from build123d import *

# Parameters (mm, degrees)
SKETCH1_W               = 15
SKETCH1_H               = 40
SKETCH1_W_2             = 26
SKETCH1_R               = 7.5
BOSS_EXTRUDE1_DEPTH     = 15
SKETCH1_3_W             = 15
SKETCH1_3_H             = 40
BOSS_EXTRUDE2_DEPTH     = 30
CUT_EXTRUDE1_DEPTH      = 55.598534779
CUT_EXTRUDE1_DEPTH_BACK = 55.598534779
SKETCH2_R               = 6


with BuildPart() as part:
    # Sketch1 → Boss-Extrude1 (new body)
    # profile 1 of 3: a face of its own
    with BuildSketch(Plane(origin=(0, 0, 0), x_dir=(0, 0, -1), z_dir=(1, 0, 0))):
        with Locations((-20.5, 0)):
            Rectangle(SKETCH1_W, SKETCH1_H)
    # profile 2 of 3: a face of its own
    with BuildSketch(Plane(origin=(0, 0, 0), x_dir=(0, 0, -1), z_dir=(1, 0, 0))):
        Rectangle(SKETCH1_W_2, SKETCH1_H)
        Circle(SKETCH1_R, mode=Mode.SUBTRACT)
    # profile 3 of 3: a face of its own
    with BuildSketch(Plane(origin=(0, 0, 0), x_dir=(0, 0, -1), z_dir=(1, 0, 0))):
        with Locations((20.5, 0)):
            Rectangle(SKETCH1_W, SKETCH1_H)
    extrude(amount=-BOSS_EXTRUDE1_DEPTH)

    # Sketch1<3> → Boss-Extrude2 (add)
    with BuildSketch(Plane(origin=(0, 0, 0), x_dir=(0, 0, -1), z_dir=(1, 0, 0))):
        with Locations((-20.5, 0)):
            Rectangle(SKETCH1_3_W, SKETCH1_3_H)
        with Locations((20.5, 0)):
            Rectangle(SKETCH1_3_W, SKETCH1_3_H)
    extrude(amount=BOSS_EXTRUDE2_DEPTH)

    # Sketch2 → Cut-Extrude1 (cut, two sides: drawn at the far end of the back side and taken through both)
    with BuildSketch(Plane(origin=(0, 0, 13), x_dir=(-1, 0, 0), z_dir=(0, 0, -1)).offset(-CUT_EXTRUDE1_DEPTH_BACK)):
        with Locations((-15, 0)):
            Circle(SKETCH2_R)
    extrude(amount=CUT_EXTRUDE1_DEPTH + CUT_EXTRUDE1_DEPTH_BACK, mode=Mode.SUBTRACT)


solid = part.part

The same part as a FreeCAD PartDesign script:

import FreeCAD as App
import Part
import Sketcher
Q = App.Units.Quantity

doc = App.newDocument("Part")
body = doc.addObject("PartDesign::Body", "Body")

# Sketch on YZ plane
sketch1 = body.newObject("Sketcher::SketchObject", "Sketch")
sketch1.AttachmentSupport = (doc.getObject("YZ_Plane"), [""])
sketch1.MapMode = "FlatFace"
sketch1.addGeometry(Part.LineSegment(App.Vector(20, 28, 0), App.Vector(-20, 28, 0)), False)
sketch1.addGeometry(Part.LineSegment(App.Vector(-20, 28, 0), App.Vector(-20, -28, 0)), False)
sketch1.addGeometry(Part.LineSegment(App.Vector(-20, -28, 0), App.Vector(20, -28, 0)), False)
sketch1.addGeometry(Part.LineSegment(App.Vector(20, -28, 0), App.Vector(20, 28, 0)), False)
sketch1.addGeometry(Part.Circle(App.Vector(0, 0, 0), App.Vector(0, 0, 1), 8), False)
sketch1.addConstraint(Sketcher.Constraint("Coincident", 0, 2, 1, 1))
sketch1.addConstraint(Sketcher.Constraint("Coincident", 1, 2, 2, 1))
sketch1.addConstraint(Sketcher.Constraint("Coincident", 2, 2, 3, 1))
sketch1.addConstraint(Sketcher.Constraint("Coincident", 3, 2, 0, 1))
sketch1.addConstraint(Sketcher.Constraint("Horizontal", 0))
sketch1.addConstraint(Sketcher.Constraint("Vertical", 1))
sketch1.addConstraint(Sketcher.Constraint("Horizontal", 2))
sketch1.addConstraint(Sketcher.Constraint("Vertical", 3))
sketch1.addConstraint(Sketcher.Constraint("Coincident", 4, 3, -1, 1))
sketch1.addConstraint(Sketcher.Constraint("Symmetric", 0, 2, 2, 2, -1, 1))
sketch1.addConstraint(Sketcher.Constraint("Diameter", 4, Q("15 mm")))
sketch1.addConstraint(Sketcher.Constraint("DistanceX", 0, 2, 0, 1, Q("40 mm")))
sketch1.addConstraint(Sketcher.Constraint("DistanceY", 1, 2, 1, 1, Q("56 mm")))
pad1 = body.newObject("PartDesign::Pad", "Pad")
pad1.Profile = sketch1
pad1.Length = 15
pad1.Reversed = True

# Sketch on YZ plane
sketch2 = body.newObject("Sketcher::SketchObject", "Sketch001")
sketch2.AttachmentSupport = (doc.getObject("YZ_Plane"), [""])
sketch2.MapMode = "FlatFace"
sketch2.addGeometry(Part.LineSegment(App.Vector(20, 28, 0), App.Vector(-20, 28, 0)), False)
sketch2.addGeometry(Part.LineSegment(App.Vector(-20, 28, 0), App.Vector(-20, 13, 0)), False)
sketch2.addGeometry(Part.LineSegment(App.Vector(-20, 13, 0), App.Vector(20, 13, 0)), False)
sketch2.addGeometry(Part.LineSegment(App.Vector(20, 13, 0), App.Vector(20, 28, 0)), False)
sketch2.addGeometry(Part.LineSegment(App.Vector(20, -13, 0), App.Vector(-20, -13, 0)), False)
sketch2.addGeometry(Part.LineSegment(App.Vector(-20, -13, 0), App.Vector(-20, -28, 0)), False)
sketch2.addGeometry(Part.LineSegment(App.Vector(-20, -28, 0), App.Vector(20, -28, 0)), False)
sketch2.addGeometry(Part.LineSegment(App.Vector(20, -28, 0), App.Vector(20, -13, 0)), False)
sketch2.addConstraint(Sketcher.Constraint("Coincident", 0, 2, 1, 1))
sketch2.addConstraint(Sketcher.Constraint("Coincident", 1, 2, 2, 1))
sketch2.addConstraint(Sketcher.Constraint("Coincident", 2, 2, 3, 1))
sketch2.addConstraint(Sketcher.Constraint("Coincident", 3, 2, 0, 1))
sketch2.addConstraint(Sketcher.Constraint("Coincident", 4, 2, 5, 1))
sketch2.addConstraint(Sketcher.Constraint("Coincident", 5, 2, 6, 1))
sketch2.addConstraint(Sketcher.Constraint("Coincident", 6, 2, 7, 1))
sketch2.addConstraint(Sketcher.Constraint("Coincident", 7, 2, 4, 1))
sketch2.addConstraint(Sketcher.Constraint("Horizontal", 0))
sketch2.addConstraint(Sketcher.Constraint("Vertical", 1))
sketch2.addConstraint(Sketcher.Constraint("Horizontal", 2))
sketch2.addConstraint(Sketcher.Constraint("Vertical", 3))
sketch2.addConstraint(Sketcher.Constraint("Horizontal", 4))
sketch2.addConstraint(Sketcher.Constraint("Vertical", 5))
sketch2.addConstraint(Sketcher.Constraint("Horizontal", 6))
sketch2.addConstraint(Sketcher.Constraint("Vertical", 7))
sketch2.addConstraint(Sketcher.Constraint("Symmetric", 2, 2, 4, 2, -1, 1))
sketch2.addConstraint(Sketcher.Constraint("Symmetric", 0, 2, 6, 2, -1, 1))
sketch2.addConstraint(Sketcher.Constraint("Vertical", 1, 2, 4, 2))
sketch2.addConstraint(Sketcher.Constraint("DistanceX", 0, 2, 0, 1, Q("40 mm")))
sketch2.addConstraint(Sketcher.Constraint("DistanceY", 1, 2, 1, 1, Q("15 mm")))
sketch2.addConstraint(Sketcher.Constraint("DistanceY", -1, 1, 0, 2, Q("28 mm")))
pad2 = body.newObject("PartDesign::Pad", "Pad001")
pad2.Profile = sketch2
pad2.Length = 30

# Sketch on XY plane
sketch3 = body.newObject("Sketcher::SketchObject", "Sketch002")
sketch3.AttachmentSupport = (doc.getObject("XY_Plane"), [""])
sketch3.MapMode = "FlatFace"
sketch3.AttachmentOffset = App.Placement(App.Vector(0, 0, 13), App.Rotation())
sketch3.addGeometry(Part.Circle(App.Vector(15, 0, 0), App.Vector(0, 0, 1), 6), False)
sketch3.addConstraint(Sketcher.Constraint("PointOnObject", 0, 3, -1))
sketch3.addConstraint(Sketcher.Constraint("Diameter", 0, Q("12 mm")))
sketch3.addConstraint(Sketcher.Constraint("DistanceX", -1, 1, 0, 3, Q("15 mm")))
pocket1 = body.newObject("PartDesign::Pocket", "Pocket")
pocket1.Profile = sketch3
pocket1.Type = "ThroughAll"
pocket1.Midplane = True

doc.recompute()
